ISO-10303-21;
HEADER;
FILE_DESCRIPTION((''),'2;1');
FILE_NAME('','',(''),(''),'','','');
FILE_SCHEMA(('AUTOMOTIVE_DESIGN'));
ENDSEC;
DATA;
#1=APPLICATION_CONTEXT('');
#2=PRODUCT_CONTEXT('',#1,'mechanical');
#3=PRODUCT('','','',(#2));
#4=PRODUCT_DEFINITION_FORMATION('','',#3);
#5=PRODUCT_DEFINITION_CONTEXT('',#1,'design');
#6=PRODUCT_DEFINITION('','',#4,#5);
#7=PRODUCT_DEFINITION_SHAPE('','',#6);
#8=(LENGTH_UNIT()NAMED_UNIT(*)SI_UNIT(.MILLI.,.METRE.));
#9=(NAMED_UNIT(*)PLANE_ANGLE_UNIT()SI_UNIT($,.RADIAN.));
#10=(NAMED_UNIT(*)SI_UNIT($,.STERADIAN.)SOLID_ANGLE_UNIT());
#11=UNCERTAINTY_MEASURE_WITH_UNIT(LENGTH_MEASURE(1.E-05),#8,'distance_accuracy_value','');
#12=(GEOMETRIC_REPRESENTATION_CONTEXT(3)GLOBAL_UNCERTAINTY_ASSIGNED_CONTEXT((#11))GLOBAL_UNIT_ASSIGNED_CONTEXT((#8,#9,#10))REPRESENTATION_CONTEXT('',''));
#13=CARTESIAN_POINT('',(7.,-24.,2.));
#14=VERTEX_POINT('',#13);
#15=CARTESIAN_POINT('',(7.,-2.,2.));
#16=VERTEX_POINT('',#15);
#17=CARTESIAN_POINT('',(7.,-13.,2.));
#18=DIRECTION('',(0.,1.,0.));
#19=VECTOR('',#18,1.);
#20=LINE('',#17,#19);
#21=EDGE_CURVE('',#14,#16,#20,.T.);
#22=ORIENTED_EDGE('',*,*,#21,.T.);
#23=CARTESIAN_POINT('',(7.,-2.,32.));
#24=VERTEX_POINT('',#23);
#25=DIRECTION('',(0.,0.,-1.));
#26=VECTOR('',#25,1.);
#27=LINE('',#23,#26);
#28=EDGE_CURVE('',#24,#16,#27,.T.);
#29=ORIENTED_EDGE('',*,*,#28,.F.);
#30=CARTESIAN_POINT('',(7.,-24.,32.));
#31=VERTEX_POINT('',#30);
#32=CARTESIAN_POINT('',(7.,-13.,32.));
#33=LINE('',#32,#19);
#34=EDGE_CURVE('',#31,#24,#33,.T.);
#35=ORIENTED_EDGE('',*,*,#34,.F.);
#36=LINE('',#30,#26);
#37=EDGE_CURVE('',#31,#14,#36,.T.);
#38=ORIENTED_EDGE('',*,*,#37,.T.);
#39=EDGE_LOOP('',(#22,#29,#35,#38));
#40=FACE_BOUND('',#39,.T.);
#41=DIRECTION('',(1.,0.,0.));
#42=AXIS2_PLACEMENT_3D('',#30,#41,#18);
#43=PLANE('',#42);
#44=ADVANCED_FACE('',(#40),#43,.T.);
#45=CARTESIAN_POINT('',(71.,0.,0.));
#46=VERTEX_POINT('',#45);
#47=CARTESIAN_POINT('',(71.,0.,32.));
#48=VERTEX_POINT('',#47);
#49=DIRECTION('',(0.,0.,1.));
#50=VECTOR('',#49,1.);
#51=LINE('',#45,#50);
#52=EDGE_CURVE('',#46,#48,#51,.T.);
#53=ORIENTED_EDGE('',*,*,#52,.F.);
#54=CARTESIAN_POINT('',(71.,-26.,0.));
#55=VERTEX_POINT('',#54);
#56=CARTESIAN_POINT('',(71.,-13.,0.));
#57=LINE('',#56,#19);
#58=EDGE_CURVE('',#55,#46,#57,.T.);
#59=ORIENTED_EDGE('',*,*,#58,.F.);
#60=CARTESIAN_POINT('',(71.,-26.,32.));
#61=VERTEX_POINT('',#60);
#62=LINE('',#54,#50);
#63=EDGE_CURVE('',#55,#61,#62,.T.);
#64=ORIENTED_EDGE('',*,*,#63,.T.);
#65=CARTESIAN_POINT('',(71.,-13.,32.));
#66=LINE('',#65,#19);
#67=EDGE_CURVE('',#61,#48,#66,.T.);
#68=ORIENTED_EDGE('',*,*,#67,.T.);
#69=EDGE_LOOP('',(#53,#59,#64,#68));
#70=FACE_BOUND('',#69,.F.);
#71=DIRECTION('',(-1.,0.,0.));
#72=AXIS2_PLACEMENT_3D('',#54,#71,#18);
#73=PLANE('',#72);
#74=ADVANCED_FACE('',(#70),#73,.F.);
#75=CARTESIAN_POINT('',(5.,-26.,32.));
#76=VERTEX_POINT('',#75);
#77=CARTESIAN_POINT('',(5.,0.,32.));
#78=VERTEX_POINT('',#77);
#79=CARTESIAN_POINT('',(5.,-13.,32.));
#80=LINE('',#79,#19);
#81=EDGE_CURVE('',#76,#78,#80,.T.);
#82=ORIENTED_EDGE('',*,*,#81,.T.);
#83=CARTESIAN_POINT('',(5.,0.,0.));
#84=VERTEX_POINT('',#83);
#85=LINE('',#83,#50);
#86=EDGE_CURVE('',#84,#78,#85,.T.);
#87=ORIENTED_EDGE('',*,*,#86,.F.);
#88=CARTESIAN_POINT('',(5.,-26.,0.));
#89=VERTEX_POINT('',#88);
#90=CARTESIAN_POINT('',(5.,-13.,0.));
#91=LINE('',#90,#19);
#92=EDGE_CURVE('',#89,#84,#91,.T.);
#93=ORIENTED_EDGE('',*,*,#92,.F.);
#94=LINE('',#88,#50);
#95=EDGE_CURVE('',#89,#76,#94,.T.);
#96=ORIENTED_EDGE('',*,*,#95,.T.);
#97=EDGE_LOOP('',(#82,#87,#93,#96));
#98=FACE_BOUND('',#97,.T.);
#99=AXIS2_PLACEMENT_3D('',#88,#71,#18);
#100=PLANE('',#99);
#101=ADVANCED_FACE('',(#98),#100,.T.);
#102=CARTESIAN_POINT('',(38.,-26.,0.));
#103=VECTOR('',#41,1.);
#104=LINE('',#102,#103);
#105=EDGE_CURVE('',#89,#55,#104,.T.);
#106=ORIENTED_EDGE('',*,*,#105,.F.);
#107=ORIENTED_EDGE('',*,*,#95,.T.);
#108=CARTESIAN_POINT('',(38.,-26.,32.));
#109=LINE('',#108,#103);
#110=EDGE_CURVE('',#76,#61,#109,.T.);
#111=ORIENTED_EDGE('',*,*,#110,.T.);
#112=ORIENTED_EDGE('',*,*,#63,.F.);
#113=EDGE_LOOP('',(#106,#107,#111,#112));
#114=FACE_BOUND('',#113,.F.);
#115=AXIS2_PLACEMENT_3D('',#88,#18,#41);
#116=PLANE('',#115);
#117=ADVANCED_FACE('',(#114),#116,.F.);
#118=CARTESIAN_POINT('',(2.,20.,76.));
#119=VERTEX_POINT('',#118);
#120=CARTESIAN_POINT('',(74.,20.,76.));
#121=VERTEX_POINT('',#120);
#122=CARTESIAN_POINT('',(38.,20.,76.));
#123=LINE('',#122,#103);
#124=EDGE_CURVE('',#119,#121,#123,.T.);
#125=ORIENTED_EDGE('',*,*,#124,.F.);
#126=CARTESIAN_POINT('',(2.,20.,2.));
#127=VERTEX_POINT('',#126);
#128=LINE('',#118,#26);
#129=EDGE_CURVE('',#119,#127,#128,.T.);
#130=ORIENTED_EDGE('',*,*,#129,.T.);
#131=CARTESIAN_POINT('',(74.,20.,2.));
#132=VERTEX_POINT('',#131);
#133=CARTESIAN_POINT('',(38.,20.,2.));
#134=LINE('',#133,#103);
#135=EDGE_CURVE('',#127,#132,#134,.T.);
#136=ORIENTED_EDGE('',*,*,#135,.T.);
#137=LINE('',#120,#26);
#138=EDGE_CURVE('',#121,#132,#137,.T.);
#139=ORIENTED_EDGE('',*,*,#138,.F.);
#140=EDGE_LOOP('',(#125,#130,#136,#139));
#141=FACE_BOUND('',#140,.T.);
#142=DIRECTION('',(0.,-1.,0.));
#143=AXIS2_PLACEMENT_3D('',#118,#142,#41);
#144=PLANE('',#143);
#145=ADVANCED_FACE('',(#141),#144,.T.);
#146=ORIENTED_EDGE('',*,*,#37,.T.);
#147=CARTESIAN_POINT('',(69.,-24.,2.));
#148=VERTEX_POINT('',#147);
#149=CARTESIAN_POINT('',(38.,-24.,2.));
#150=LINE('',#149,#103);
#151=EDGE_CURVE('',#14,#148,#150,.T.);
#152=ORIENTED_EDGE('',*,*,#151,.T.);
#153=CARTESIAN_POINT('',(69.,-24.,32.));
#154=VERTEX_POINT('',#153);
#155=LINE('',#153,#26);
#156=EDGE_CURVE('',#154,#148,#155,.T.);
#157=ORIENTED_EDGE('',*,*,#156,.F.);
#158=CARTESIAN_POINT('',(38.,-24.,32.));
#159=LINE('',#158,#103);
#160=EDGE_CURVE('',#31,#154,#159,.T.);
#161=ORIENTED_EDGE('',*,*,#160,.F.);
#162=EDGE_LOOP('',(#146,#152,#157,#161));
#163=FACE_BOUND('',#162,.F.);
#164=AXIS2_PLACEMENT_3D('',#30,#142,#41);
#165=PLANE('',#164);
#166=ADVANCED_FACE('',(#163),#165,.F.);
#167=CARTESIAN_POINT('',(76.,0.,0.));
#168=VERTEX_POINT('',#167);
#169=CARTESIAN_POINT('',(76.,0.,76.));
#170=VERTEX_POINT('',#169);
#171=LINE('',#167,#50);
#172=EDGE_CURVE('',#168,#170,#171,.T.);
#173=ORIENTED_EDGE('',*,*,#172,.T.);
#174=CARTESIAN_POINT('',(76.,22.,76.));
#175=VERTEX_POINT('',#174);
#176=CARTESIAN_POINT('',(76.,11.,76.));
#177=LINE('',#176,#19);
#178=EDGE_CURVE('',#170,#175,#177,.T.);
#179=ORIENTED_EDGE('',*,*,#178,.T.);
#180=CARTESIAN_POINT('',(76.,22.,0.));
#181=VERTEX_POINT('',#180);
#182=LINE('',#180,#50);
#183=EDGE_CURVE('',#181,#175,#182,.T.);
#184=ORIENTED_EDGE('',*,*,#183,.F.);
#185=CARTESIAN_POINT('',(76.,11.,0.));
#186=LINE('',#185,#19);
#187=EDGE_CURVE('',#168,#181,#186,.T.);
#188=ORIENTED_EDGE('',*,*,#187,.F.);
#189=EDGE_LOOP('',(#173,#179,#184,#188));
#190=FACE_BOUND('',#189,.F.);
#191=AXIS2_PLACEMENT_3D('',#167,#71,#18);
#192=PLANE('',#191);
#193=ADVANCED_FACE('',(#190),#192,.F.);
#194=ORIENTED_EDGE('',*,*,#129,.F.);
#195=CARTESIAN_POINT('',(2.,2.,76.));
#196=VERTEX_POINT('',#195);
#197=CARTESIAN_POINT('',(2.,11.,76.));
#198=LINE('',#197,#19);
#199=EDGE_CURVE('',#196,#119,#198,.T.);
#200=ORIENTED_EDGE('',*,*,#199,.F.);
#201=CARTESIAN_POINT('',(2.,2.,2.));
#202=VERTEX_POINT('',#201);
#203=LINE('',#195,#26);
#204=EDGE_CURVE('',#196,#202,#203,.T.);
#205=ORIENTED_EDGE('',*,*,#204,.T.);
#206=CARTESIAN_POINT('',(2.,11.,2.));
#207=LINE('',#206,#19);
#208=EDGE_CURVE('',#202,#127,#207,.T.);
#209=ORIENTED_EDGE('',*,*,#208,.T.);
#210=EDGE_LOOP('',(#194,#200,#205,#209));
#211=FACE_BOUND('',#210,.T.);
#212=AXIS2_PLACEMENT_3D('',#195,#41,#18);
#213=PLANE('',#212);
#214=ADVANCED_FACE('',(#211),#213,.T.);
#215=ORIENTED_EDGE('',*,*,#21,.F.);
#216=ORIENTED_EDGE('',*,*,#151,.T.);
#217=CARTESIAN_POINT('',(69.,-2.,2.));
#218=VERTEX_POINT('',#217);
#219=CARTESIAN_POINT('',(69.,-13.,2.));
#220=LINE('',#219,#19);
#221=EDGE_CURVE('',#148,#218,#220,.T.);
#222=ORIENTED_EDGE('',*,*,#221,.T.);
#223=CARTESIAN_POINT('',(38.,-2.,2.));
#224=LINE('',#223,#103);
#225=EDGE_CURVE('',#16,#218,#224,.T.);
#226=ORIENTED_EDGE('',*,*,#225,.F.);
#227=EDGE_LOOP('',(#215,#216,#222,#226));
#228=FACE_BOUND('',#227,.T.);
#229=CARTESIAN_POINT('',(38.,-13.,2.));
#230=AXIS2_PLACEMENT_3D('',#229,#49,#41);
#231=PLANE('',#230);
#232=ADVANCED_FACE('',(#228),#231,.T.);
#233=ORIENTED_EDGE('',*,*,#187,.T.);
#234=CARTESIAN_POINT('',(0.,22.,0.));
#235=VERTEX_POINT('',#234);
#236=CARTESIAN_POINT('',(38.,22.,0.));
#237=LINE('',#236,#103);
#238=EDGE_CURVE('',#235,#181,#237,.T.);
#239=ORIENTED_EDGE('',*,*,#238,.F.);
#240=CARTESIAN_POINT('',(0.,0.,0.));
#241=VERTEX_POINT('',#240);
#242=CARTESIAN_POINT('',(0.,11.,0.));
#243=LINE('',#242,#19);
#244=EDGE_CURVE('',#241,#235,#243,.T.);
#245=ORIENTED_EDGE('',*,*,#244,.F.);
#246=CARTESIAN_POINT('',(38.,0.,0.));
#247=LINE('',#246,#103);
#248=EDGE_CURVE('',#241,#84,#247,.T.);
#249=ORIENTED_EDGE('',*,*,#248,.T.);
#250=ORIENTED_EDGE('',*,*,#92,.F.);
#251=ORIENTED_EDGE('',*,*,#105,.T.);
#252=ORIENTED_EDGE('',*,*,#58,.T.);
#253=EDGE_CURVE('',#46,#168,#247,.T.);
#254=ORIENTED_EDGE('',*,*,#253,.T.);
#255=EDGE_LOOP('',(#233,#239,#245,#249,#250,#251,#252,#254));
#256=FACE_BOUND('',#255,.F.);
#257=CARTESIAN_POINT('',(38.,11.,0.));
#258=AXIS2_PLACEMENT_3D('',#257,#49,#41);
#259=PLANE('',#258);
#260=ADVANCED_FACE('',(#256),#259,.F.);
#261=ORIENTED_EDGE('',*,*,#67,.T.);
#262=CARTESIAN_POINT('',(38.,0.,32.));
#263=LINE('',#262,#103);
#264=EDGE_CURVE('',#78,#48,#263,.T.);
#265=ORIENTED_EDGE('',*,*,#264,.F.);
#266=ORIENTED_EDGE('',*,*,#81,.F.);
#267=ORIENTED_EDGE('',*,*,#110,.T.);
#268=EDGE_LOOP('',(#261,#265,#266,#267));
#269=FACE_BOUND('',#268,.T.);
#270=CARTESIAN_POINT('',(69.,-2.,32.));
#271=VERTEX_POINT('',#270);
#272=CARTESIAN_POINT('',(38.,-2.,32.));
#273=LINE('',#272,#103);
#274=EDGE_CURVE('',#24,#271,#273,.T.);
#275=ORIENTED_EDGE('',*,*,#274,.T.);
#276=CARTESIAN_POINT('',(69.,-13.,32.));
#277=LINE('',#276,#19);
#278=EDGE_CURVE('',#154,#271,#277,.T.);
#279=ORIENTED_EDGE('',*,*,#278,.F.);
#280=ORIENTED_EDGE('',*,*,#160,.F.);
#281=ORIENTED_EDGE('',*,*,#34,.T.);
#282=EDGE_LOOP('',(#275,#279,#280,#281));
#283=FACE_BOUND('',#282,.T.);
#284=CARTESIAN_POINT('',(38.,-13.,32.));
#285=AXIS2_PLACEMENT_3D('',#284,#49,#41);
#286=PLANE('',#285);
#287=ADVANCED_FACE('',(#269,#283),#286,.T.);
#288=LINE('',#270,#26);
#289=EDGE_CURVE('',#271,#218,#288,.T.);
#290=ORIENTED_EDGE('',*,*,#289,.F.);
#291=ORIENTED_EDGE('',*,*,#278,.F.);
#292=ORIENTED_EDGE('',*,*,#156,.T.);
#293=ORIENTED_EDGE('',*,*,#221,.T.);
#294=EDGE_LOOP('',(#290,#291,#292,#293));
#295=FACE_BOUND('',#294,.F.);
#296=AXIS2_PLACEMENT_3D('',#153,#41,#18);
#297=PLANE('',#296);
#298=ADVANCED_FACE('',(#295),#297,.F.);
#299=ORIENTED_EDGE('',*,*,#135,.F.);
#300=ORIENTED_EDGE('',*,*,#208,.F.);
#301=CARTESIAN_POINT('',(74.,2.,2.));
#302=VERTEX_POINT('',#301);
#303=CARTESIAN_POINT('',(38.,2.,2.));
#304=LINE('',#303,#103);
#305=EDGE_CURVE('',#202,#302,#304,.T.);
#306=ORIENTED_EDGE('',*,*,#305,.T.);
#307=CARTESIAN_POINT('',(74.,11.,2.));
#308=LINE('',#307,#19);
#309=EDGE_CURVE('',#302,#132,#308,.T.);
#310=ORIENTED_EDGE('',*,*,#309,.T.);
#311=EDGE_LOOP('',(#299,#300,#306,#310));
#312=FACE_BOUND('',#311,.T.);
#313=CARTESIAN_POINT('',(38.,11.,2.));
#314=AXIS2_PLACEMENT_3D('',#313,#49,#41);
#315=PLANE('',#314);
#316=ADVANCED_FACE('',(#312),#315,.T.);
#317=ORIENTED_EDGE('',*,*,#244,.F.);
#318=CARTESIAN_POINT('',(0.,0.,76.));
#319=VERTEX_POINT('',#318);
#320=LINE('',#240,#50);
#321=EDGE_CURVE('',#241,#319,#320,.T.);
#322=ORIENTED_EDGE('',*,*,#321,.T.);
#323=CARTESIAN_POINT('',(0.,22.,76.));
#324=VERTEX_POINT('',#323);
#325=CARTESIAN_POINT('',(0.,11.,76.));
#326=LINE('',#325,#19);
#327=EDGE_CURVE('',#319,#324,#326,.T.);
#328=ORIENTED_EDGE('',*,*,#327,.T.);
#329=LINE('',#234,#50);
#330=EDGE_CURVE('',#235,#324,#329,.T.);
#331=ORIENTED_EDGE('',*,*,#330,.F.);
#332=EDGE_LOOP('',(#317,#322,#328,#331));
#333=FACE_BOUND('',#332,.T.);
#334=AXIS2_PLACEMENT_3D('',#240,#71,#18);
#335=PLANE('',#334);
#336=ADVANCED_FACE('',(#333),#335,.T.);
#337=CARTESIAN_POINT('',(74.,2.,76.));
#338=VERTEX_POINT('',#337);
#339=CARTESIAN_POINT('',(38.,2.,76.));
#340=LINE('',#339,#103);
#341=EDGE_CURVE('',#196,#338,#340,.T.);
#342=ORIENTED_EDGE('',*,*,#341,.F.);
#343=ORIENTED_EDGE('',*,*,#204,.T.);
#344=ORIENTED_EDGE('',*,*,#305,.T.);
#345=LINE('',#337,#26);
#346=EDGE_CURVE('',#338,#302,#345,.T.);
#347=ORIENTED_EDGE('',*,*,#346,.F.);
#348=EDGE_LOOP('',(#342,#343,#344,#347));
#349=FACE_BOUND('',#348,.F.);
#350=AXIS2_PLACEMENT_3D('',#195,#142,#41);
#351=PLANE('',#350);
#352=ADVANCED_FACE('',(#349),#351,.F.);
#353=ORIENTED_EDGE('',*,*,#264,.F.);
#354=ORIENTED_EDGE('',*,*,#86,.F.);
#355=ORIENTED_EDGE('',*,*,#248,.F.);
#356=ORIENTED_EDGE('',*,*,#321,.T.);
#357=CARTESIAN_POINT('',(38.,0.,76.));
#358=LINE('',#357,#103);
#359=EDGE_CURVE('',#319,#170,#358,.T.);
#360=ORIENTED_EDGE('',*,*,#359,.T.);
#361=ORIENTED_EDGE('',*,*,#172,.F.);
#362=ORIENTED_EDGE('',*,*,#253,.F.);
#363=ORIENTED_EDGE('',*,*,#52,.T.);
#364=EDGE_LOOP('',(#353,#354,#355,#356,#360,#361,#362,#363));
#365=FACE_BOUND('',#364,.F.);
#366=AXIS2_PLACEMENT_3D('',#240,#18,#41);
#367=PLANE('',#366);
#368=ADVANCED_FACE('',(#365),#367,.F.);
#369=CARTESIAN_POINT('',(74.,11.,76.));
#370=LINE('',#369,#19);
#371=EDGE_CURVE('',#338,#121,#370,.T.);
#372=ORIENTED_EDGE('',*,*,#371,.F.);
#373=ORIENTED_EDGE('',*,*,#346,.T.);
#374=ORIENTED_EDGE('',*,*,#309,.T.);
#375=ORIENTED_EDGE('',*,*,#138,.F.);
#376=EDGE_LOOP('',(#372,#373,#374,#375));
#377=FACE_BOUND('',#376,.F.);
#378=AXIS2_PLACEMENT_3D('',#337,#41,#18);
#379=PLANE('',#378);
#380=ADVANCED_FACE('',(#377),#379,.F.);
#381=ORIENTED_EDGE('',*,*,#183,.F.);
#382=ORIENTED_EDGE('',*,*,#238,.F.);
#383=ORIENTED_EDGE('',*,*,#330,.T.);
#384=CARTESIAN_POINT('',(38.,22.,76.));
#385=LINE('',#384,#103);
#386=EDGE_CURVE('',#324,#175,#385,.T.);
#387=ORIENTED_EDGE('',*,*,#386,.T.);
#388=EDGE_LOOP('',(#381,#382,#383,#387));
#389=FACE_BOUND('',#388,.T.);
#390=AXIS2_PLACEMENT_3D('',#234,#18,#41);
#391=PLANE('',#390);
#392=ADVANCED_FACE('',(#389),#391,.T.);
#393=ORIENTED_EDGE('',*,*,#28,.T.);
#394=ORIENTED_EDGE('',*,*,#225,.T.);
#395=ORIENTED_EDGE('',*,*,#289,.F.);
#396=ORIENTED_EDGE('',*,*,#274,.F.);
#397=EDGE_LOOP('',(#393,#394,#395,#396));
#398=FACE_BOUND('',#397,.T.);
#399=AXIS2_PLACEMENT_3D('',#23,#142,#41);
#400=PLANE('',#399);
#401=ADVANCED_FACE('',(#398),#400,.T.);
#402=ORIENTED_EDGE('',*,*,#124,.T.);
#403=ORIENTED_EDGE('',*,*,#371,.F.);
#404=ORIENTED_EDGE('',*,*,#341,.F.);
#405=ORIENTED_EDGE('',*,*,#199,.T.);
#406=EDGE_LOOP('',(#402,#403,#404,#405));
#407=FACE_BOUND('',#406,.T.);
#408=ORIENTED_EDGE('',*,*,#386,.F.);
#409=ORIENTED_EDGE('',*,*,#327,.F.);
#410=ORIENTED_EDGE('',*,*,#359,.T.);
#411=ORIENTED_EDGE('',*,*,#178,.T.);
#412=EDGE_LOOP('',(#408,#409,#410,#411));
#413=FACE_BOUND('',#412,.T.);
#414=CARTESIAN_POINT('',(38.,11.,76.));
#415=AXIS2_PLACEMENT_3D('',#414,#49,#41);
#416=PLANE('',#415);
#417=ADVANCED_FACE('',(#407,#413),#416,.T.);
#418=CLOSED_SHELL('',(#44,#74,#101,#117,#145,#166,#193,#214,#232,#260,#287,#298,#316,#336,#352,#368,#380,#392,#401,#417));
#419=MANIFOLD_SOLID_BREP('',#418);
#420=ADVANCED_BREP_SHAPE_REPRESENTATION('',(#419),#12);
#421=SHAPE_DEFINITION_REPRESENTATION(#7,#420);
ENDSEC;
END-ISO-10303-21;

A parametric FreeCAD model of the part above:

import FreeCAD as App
import Part
import Sketcher
from FreeCAD import Vector
Q = App.Units.Quantity


def add_polygon(sketch, points):
    """Adds a closed chain of lines whose ends are joined by coincident constraints."""
    first, n = sketch.GeometryCount, len(points)
    for a, b in zip(points, points[1:] + points[:1]):
        sketch.addGeometry(Part.LineSegment(App.Vector(*a, 0), App.Vector(*b, 0)), False)
    for i in range(n):
        sketch.addConstraint(Sketcher.Constraint("Coincident", first + i, 2, first + (i + 1) % n, 1))

doc = App.newDocument("Part")
body = doc.addObject("PartDesign::Body", "Body")

# Sketch on XY plane
sketch1 = body.newObject("Sketcher::SketchObject", "Sketch")
sketch1.AttachmentSupport = (doc.getObject("XY_Plane"), [""])
sketch1.MapMode = "FlatFace"
add_polygon(sketch1, [(0, 22), (0, 0), (76, 0), (76, 22)])  # lines 0-3
sketch1.addConstraint([
    Sketcher.Constraint("Vertical", 0),
    Sketcher.Constraint("Horizontal", 1),
    Sketcher.Constraint("Vertical", 2),
    Sketcher.Constraint("Horizontal", 3),
    Sketcher.Constraint("Coincident", 0, 2, -1, 1),
    Sketcher.Constraint("DistanceX", 1, 1, 1, 2, Q("76 mm")),
    Sketcher.Constraint("DistanceY", 0, 2, 0, 1, Q("22 mm")),
])
pad1 = body.newObject("PartDesign::Pad", "Pad")
pad1.Profile = sketch1
pad1.Length = 76

# Sketch on XY plane
sketch2 = body.newObject("Sketcher::SketchObject", "Sketch001")
sketch2.AttachmentSupport = (doc.getObject("XY_Plane"), [""])
sketch2.MapMode = "FlatFace"
add_polygon(sketch2, [(5, 0), (5, -26), (71, -26), (71, 0)])  # lines 0-3
sketch2.addConstraint([
    Sketcher.Constraint("Vertical", 0),
    Sketcher.Constraint("Horizontal", 1),
    Sketcher.Constraint("Vertical", 2),
    Sketcher.Constraint("Horizontal", 3),
    Sketcher.Constraint("PointOnObject", 2, 2, -1),
    Sketcher.Constraint("DistanceX", 1, 1, 1, 2, Q("66 mm")),
    Sketcher.Constraint("DistanceY", 0, 2, 0, 1, Q("26 mm")),
    Sketcher.Constraint("DistanceX", -1, 1, 0, 2, Q("5 mm")),
])
pad2 = body.newObject("PartDesign::Pad", "Pad001")
pad2.Profile = sketch2
pad2.Length = 32

# Sketch on XY plane
sketch3 = body.newObject("Sketcher::SketchObject", "Sketch002")
sketch3.AttachmentSupport = (doc.getObject("XY_Plane"), [""])
sketch3.MapMode = "FlatFace"
sketch3.AttachmentOffset = App.Placement(Vector(0, 0, 32), App.Rotation())
add_polygon(sketch3, [(7, -2), (7, -24), (69, -24), (69, -2)])  # lines 0-3
sketch3.addConstraint([
    Sketcher.Constraint("Vertical", 0),
    Sketcher.Constraint("Horizontal", 1),
    Sketcher.Constraint("Vertical", 2),
    Sketcher.Constraint("Horizontal", 3),
    Sketcher.Constraint("DistanceX", 1, 1, 1, 2, Q("62 mm")),
    Sketcher.Constraint("DistanceY", 0, 2, 0, 1, Q("22 mm")),
    Sketcher.Constraint("DistanceX", -1, 1, 0, 2, Q("7 mm")),
    Sketcher.Constraint("DistanceY", 0, 2, -1, 1, Q("24 mm")),
])
pocket1 = body.newObject("PartDesign::Pocket", "Pocket")
pocket1.Profile = sketch3
pocket1.Length = 30

# Sketch on XY plane
sketch4 = body.newObject("Sketcher::SketchObject", "Sketch003")
sketch4.AttachmentSupport = (doc.getObject("XY_Plane"), [""])
sketch4.MapMode = "FlatFace"
sketch4.AttachmentOffset = App.Placement(Vector(0, 0, 76), App.Rotation())
add_polygon(sketch4, [(2, 20), (2, 2), (74, 2), (74, 20)])  # lines 0-3
sketch4.addConstraint([
    Sketcher.Constraint("Vertical", 0),
    Sketcher.Constraint("Horizontal", 1),
    Sketcher.Constraint("Vertical", 2),
    Sketcher.Constraint("Horizontal", 3),
    Sketcher.Constraint("DistanceX", 1, 1, 1, 2, Q("72 mm")),
    Sketcher.Constraint("DistanceY", 0, 2, 0, 1, Q("18 mm")),
    Sketcher.Constraint("DistanceX", -1, 1, 0, 2, Q("2 mm")),
    Sketcher.Constraint("DistanceY", -1, 1, 0, 2, Q("2 mm")),
])
pocket2 = body.newObject("PartDesign::Pocket", "Pocket001")
pocket2.Profile = sketch4
pocket2.Length = 74

doc.recompute()
